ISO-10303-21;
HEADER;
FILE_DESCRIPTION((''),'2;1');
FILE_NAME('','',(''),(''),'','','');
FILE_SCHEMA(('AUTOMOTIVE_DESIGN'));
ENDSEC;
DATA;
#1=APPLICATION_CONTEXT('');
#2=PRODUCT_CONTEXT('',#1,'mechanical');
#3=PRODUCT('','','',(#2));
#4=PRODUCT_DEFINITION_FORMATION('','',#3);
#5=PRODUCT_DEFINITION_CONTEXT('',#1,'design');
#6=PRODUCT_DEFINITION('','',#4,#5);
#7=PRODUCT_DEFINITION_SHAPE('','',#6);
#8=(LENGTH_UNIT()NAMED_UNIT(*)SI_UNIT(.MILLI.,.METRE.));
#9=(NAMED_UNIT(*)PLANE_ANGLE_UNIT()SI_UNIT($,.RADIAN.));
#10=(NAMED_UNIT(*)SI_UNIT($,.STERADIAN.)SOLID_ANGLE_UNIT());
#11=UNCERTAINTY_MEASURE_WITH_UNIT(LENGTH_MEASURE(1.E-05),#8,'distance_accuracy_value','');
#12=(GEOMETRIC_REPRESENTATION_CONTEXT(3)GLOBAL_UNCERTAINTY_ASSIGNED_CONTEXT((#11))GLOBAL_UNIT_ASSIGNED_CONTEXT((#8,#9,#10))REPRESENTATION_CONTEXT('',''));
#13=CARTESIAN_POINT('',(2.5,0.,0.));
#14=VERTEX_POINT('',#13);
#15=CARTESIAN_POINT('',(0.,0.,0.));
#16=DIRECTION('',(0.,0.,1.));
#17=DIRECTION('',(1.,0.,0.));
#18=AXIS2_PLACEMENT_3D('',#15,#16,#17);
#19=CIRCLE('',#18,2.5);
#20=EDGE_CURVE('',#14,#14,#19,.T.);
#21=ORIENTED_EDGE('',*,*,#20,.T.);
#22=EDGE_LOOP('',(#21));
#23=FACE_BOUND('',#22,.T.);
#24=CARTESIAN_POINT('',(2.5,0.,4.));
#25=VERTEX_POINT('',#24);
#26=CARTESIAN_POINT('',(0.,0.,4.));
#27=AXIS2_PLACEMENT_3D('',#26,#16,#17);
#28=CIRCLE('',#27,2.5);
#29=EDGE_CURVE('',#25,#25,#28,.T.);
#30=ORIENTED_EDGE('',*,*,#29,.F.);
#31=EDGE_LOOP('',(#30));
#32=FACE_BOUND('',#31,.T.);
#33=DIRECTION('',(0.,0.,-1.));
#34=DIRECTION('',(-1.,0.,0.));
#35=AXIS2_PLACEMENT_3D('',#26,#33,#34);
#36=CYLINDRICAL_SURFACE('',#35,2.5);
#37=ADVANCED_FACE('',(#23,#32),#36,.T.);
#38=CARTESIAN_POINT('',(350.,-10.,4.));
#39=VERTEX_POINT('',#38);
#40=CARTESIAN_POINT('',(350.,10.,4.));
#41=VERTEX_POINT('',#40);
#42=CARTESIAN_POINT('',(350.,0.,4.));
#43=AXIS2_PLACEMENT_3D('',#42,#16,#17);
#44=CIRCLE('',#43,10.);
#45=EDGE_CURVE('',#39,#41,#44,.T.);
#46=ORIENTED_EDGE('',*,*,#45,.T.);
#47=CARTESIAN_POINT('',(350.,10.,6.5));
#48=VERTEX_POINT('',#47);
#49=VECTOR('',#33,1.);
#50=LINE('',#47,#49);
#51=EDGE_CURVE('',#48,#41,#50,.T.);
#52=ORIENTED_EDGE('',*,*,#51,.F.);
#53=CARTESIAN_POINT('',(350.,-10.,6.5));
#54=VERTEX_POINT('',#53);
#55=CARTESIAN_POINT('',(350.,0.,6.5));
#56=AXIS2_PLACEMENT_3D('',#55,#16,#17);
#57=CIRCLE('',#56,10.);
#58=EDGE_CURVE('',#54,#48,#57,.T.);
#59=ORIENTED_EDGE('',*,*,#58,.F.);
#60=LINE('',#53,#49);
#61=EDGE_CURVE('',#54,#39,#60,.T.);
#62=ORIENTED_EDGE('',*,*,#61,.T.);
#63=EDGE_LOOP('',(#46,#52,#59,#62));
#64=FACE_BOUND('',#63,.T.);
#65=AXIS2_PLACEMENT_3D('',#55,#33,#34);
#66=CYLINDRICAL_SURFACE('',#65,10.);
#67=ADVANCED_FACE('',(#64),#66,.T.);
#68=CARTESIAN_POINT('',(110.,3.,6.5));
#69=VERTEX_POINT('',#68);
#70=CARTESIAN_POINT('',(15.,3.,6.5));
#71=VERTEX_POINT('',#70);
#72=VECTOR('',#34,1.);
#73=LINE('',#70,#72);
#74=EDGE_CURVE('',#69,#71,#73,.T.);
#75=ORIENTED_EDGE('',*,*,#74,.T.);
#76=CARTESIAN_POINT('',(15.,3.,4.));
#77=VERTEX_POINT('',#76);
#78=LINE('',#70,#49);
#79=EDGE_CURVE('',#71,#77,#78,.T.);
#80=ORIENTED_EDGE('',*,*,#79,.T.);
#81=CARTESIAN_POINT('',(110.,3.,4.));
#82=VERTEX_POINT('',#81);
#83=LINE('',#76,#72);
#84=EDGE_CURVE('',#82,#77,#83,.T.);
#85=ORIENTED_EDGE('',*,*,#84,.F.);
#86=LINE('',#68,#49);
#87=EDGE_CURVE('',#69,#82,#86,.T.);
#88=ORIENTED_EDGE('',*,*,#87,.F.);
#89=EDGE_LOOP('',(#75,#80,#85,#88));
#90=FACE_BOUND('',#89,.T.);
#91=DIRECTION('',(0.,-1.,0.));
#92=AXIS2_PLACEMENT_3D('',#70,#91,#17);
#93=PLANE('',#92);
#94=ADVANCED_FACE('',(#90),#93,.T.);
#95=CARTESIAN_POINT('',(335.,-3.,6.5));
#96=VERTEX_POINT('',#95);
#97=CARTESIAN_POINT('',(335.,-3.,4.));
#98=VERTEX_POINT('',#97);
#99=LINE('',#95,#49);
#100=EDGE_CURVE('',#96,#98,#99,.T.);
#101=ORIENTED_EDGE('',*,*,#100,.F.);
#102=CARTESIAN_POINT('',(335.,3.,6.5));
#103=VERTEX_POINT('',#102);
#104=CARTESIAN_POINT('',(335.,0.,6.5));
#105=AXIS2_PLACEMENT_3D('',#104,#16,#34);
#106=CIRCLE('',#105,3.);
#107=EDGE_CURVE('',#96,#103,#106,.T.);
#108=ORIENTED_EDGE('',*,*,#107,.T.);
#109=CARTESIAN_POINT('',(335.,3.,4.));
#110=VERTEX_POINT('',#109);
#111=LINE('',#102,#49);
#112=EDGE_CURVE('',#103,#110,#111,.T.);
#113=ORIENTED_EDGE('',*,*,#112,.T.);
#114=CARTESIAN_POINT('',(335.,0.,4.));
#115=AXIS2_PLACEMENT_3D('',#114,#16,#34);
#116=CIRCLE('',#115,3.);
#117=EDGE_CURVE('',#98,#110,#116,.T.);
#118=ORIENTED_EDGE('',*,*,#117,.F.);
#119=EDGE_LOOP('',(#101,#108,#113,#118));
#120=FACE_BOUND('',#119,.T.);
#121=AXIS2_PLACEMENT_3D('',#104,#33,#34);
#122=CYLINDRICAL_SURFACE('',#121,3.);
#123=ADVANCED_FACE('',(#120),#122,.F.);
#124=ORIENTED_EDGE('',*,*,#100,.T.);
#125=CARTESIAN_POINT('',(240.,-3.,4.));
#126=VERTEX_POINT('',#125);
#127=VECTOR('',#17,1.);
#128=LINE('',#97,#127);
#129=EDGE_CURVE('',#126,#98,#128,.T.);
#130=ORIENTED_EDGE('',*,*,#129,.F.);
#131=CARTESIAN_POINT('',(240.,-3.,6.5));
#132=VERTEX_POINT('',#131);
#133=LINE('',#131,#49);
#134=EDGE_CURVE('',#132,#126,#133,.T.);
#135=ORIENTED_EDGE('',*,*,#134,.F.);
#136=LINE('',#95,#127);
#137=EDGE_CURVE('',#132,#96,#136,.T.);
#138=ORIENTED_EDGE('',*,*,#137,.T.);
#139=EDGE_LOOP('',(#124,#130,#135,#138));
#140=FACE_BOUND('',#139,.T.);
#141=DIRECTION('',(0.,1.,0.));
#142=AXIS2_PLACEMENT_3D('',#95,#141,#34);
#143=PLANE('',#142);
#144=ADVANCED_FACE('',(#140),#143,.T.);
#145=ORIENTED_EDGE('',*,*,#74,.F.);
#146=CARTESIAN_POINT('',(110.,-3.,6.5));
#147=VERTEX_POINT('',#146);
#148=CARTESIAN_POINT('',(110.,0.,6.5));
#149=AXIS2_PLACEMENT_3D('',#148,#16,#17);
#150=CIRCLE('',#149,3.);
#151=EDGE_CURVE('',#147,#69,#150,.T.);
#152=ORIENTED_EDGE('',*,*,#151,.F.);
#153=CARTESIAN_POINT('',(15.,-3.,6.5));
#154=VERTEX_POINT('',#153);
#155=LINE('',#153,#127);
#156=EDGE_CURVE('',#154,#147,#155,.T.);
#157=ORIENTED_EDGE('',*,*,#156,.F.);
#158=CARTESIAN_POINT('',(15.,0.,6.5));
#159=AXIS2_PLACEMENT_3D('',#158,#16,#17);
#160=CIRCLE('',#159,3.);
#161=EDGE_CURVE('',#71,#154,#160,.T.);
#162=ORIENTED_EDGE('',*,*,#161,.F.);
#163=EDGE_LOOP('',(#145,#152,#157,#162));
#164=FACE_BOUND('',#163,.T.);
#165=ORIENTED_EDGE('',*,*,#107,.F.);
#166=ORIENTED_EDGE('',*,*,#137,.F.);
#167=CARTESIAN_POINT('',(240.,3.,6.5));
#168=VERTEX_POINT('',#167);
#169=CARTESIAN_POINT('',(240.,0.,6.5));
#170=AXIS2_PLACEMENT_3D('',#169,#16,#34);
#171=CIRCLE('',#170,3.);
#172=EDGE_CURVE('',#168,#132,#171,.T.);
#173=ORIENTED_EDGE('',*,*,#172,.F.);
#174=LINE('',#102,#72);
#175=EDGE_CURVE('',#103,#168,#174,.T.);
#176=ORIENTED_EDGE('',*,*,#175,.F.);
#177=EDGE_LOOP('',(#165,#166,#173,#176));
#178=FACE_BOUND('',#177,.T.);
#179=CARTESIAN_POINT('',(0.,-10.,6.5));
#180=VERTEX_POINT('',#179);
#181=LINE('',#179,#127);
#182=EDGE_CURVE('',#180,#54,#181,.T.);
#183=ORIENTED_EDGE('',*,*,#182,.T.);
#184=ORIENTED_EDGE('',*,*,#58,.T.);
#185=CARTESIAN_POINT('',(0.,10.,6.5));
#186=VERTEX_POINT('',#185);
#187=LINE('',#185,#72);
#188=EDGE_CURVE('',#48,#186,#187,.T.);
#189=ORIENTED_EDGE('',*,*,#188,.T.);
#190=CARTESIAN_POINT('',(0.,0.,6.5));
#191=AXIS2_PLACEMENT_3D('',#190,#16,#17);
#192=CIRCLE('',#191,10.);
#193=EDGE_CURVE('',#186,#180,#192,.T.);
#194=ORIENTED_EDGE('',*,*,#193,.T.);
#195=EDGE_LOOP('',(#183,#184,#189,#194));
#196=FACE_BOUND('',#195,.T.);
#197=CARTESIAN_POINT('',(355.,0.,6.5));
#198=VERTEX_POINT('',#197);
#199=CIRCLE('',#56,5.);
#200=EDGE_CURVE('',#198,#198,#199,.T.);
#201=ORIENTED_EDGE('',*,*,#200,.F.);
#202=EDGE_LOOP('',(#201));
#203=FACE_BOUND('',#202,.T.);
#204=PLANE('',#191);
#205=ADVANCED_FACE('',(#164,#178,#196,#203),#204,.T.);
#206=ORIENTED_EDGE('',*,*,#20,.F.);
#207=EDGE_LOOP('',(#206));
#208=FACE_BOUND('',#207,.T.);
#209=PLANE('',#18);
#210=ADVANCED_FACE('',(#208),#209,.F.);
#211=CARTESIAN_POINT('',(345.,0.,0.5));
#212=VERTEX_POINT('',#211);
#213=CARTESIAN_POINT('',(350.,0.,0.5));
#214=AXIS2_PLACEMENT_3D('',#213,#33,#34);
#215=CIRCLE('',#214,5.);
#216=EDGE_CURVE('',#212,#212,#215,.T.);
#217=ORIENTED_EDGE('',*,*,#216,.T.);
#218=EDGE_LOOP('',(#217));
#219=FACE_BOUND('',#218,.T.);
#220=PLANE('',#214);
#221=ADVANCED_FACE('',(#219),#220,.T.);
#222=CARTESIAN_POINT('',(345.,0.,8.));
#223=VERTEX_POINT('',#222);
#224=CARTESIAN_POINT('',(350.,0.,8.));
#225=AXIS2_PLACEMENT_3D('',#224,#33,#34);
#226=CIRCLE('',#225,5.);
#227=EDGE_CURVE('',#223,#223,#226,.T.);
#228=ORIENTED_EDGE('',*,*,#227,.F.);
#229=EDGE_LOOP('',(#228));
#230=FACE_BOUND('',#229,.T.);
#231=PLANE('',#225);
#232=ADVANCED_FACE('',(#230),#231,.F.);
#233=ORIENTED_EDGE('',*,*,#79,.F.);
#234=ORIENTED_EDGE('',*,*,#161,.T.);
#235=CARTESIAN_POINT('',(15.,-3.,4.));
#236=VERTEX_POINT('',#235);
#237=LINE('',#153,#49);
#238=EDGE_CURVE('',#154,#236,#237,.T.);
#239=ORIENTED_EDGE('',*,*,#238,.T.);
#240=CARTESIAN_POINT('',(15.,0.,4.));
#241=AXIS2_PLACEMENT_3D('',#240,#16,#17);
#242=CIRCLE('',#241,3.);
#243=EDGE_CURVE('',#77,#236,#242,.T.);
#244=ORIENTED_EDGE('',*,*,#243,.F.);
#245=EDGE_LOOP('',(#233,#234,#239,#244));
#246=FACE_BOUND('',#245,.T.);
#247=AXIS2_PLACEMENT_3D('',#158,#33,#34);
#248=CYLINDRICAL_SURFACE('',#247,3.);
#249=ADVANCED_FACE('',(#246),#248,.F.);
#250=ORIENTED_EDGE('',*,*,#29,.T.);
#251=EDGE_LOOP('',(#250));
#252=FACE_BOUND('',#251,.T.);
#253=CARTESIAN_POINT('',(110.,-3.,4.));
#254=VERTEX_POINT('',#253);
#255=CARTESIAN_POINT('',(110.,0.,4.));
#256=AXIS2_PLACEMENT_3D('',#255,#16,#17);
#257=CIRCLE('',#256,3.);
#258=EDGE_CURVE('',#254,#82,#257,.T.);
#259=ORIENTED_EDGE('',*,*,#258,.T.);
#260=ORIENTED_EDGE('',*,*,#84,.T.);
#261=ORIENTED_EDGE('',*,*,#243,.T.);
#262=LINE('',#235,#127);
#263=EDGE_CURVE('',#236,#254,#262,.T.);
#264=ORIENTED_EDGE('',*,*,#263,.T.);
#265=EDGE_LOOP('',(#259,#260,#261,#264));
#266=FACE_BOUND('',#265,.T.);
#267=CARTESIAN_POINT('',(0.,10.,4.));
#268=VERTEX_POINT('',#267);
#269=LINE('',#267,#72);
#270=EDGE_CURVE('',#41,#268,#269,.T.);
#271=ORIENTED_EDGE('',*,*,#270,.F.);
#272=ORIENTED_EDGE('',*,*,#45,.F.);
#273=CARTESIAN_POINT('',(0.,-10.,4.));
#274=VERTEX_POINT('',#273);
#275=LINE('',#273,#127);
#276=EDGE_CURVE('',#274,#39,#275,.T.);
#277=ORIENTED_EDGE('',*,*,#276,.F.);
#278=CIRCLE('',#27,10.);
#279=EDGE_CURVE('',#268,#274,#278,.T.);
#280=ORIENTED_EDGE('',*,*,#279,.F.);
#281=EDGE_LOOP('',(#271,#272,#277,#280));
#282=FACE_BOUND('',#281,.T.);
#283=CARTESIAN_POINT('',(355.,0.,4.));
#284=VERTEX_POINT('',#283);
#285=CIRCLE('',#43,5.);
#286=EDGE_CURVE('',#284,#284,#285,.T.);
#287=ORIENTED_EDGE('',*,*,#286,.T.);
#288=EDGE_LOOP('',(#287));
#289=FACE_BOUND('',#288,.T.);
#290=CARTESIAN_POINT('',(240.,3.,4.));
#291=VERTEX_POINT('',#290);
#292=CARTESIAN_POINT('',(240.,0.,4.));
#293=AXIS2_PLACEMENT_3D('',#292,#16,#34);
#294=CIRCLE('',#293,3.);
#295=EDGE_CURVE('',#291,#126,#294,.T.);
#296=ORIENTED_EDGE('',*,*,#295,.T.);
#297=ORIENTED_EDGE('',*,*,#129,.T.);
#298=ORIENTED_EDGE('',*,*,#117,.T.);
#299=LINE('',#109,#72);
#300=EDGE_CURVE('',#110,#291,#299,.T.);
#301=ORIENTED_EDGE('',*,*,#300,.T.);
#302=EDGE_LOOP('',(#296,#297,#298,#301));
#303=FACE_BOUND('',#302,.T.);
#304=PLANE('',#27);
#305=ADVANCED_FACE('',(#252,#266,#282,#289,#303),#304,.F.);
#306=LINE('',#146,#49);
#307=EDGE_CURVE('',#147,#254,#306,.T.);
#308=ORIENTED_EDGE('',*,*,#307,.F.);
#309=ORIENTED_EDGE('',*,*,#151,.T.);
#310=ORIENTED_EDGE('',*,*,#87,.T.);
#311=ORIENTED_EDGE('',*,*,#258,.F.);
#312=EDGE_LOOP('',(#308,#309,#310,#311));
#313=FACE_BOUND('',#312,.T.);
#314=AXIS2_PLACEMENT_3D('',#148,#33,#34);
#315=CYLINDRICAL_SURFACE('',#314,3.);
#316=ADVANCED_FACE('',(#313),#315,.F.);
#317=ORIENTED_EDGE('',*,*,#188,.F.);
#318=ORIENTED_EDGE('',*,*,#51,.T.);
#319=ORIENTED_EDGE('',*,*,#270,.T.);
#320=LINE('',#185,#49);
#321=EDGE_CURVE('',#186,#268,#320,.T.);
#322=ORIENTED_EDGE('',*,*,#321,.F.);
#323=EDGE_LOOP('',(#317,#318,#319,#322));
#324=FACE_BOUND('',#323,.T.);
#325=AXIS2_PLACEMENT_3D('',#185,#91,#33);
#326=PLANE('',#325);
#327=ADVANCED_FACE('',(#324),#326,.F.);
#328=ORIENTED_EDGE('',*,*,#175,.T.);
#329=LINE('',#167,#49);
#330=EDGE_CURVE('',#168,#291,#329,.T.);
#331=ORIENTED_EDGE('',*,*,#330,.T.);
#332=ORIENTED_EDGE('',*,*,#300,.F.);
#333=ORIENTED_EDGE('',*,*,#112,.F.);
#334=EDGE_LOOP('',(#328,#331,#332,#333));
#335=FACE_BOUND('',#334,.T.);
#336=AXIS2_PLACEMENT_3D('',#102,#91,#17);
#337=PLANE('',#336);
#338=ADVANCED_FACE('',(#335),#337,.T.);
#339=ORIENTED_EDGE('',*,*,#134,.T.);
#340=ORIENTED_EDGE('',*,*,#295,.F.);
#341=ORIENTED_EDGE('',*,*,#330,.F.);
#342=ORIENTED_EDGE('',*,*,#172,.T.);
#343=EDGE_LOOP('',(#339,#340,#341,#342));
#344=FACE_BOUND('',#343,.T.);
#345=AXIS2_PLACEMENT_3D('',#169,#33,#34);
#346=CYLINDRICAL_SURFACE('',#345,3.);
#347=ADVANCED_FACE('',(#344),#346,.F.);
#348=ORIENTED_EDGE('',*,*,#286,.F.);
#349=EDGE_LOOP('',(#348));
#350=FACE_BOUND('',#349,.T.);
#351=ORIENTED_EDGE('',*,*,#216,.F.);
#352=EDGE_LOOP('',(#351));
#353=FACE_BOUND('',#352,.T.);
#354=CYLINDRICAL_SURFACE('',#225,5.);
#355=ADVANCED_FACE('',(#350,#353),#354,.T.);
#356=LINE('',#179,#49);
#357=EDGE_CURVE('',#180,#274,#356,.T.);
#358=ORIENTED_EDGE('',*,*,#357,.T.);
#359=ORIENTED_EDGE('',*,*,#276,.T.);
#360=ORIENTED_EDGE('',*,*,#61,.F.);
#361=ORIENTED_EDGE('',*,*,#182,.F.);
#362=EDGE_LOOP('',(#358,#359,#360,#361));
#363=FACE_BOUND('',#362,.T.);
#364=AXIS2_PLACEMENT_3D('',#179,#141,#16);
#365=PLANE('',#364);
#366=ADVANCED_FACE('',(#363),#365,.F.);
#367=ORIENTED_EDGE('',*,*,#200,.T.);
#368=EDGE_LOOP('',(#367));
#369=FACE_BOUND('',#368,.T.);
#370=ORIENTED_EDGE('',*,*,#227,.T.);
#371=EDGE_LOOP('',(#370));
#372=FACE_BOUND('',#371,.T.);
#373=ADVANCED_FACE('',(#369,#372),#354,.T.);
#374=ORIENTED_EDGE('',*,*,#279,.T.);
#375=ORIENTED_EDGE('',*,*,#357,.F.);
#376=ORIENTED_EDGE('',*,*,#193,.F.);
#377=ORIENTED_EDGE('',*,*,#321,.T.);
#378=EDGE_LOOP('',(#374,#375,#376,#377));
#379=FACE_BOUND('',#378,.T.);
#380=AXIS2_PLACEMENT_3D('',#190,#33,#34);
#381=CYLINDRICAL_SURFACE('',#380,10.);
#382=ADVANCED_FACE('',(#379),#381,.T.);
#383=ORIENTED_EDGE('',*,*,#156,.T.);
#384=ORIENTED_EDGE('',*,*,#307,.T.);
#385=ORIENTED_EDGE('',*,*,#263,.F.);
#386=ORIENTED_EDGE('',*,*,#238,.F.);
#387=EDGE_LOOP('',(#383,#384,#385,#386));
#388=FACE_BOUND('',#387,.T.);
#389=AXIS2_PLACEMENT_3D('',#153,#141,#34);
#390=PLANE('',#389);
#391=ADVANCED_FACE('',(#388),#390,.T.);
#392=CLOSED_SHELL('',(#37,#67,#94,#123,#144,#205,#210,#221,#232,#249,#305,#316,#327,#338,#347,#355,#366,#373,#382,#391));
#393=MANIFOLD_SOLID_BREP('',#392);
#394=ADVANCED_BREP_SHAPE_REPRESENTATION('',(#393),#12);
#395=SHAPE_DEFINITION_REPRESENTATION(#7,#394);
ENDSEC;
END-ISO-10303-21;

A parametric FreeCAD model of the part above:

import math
import FreeCAD as App
import Part
import Sketcher
from FreeCAD import Vector
Q = App.Units.Quantity

doc = App.newDocument("Part")
body = doc.addObject("PartDesign::Body", "Body")

# Sketch on XY plane
sketch1 = body.newObject("Sketcher::SketchObject", "Sketch")
sketch1.AttachmentSupport = (doc.getObject("XY_Plane"), [""])
sketch1.MapMode = "FlatFace"
sketch1.addGeometry(Part.Circle(Vector(0, 0, 0), Vector(0, 0, 1), 2.5), False)
sketch1.addConstraint(Sketcher.Constraint("Coincident", 0, 3, -1, 1))
sketch1.addConstraint(Sketcher.Constraint("Diameter", 0, Q("5 mm")))
pad1 = body.newObject("PartDesign::Pad", "Pad")
pad1.Profile = sketch1
pad1.Length = 4

# Sketch on XY plane
sketch2 = body.newObject("Sketcher::SketchObject", "Sketch001")
sketch2.AttachmentSupport = (doc.getObject("XY_Plane"), [""])
sketch2.MapMode = "FlatFace"
sketch2.AttachmentOffset = App.Placement(Vector(0, 0, 4), App.Rotation())
sketch2.addGeometry(Part.LineSegment(Vector(350, 10, 0), Vector(0, 10, 0)), False)
sketch2.addGeometry(Part.ArcOfCircle(Part.Circle(Vector(0, 0, 0), Vector(0, 0, 1), 10), math.radians(90), math.radians(270)), False)
sketch2.addGeometry(Part.LineSegment(Vector(0, -10, 0), Vector(350, -10, 0)), False)
sketch2.addGeometry(Part.ArcOfCircle(Part.Circle(Vector(350, 0, 0), Vector(0, 0, 1), 10), math.radians(-90), math.radians(90)), False)
sketch2.addGeometry(Part.Circle(Vector(350, 0, 0), Vector(0, 0, 1), 5), False)
sketch2.addGeometry(Part.ArcOfCircle(Part.Circle(Vector(335, 0, 0), Vector(0, 0, 1), 3), math.radians(-90), math.radians(90)), False)
sketch2.addGeometry(Part.LineSegment(Vector(335, -3, 0), Vector(240, -3, 0)), False)
sketch2.addGeometry(Part.ArcOfCircle(Part.Circle(Vector(240, 0, 0), Vector(0, 0, 1), 3), math.radians(90), math.radians(270)), False)
sketch2.addGeometry(Part.LineSegment(Vector(240, 3, 0), Vector(335, 3, 0)), False)
sketch2.addGeometry(Part.LineSegment(Vector(15, 3, 0), Vector(110, 3, 0)), False)
sketch2.addGeometry(Part.ArcOfCircle(Part.Circle(Vector(110, 0, 0), Vector(0, 0, 1), 3), math.radians(-90), math.radians(90)), False)
sketch2.addGeometry(Part.LineSegment(Vector(110, -3, 0), Vector(15, -3, 0)), False)
sketch2.addGeometry(Part.ArcOfCircle(Part.Circle(Vector(15, 0, 0), Vector(0, 0, 1), 3), math.radians(90), math.radians(270)), False)
sketch2.addConstraint(Sketcher.Constraint("Tangent", 0, 2, 1, 1))
sketch2.addConstraint(Sketcher.Constraint("Tangent", 1, 2, 2, 1))
sketch2.addConstraint(Sketcher.Constraint("Tangent", 2, 2, 3, 1))
sketch2.addConstraint(Sketcher.Constraint("Tangent", 3, 2, 0, 1))
sketch2.addConstraint(Sketcher.Constraint("Tangent", 5, 1, 6, 1))
sketch2.addConstraint(Sketcher.Constraint("Tangent", 6, 2, 7, 2))
sketch2.addConstraint(Sketcher.Constraint("Tangent", 7, 1, 8, 1))
sketch2.addConstraint(Sketcher.Constraint("Tangent", 8, 2, 5, 2))
sketch2.addConstraint(Sketcher.Constraint("Tangent", 9, 2, 10, 2))
sketch2.addConstraint(Sketcher.Constraint("Tangent", 10, 1, 11, 1))
sketch2.addConstraint(Sketcher.Constraint("Tangent", 11, 2, 12, 2))
sketch2.addConstraint(Sketcher.Constraint("Tangent", 12, 1, 9, 1))
sketch2.addConstraint(Sketcher.Constraint("Horizontal", 0))
sketch2.addConstraint(Sketcher.Constraint("Horizontal", 2))
sketch2.addConstraint(Sketcher.Constraint("Horizontal", 6))
sketch2.addConstraint(Sketcher.Constraint("Horizontal", 8))
sketch2.addConstraint(Sketcher.Constraint("Horizontal", 9))
sketch2.addConstraint(Sketcher.Constraint("Horizontal", 11))
sketch2.addConstraint(Sketcher.Constraint("Coincident", 1, 3, -1, 1))
sketch2.addConstraint(Sketcher.Constraint("Coincident", 4, 3, 3, 3))
sketch2.addConstraint(Sketcher.Constraint("Equal", 7, 10))
sketch2.addConstraint(Sketcher.Constraint("PointOnObject", 5, 3, -1))
sketch2.addConstraint(Sketcher.Constraint("PointOnObject", 10, 3, -1))
sketch2.addConstraint(Sketcher.Constraint("Equal", 8, 9))
sketch2.addConstraint(Sketcher.Constraint("Diameter", 4, Q("10 mm")))
sketch2.addConstraint(Sketcher.Constraint("Radius", 1, Q("10 mm")))
sketch2.addConstraint(Sketcher.Constraint("Radius", 5, Q("3 mm")))
sketch2.addConstraint(Sketcher.Constraint("DistanceX", 0, 2, 0, 1, Q("350 mm")))
sketch2.addConstraint(Sketcher.Constraint("DistanceX", 6, 2, 6, 1, Q("95 mm")))
sketch2.addConstraint(Sketcher.Constraint("DistanceX", -1, 1, 5, 3, Q("335 mm")))
sketch2.addConstraint(Sketcher.Constraint("DistanceX", -1, 1, 10, 3, Q("110 mm")))
pad2 = body.newObject("PartDesign::Pad", "Pad001")
pad2.Profile = sketch2
pad2.Length = 2.5

# Sketch on XY plane
sketch3 = body.newObject("Sketcher::SketchObject", "Sketch002")
sketch3.AttachmentSupport = (doc.getObject("XY_Plane"), [""])
sketch3.MapMode = "FlatFace"
sketch3.AttachmentOffset = App.Placement(Vector(0, 0, 4), App.Rotation())
sketch3.addGeometry(Part.Circle(Vector(350, 0, 0), Vector(0, 0, 1), 5), False)
sketch3.addConstraint(Sketcher.Constraint("PointOnObject", 0, 3, -1))
sketch3.addConstraint(Sketcher.Constraint("Diameter", 0, Q("10 mm")))
sketch3.addConstraint(Sketcher.Constraint("DistanceX", -1, 1, 0, 3, Q("350 mm")))
pad3 = body.newObject("PartDesign::Pad", "Pad002")
pad3.Profile = sketch3
pad3.Type = "TwoLengths"
pad3.Length = 3.5
pad3.Length2 = 4
pad3.Reversed = True

doc.recompute()
